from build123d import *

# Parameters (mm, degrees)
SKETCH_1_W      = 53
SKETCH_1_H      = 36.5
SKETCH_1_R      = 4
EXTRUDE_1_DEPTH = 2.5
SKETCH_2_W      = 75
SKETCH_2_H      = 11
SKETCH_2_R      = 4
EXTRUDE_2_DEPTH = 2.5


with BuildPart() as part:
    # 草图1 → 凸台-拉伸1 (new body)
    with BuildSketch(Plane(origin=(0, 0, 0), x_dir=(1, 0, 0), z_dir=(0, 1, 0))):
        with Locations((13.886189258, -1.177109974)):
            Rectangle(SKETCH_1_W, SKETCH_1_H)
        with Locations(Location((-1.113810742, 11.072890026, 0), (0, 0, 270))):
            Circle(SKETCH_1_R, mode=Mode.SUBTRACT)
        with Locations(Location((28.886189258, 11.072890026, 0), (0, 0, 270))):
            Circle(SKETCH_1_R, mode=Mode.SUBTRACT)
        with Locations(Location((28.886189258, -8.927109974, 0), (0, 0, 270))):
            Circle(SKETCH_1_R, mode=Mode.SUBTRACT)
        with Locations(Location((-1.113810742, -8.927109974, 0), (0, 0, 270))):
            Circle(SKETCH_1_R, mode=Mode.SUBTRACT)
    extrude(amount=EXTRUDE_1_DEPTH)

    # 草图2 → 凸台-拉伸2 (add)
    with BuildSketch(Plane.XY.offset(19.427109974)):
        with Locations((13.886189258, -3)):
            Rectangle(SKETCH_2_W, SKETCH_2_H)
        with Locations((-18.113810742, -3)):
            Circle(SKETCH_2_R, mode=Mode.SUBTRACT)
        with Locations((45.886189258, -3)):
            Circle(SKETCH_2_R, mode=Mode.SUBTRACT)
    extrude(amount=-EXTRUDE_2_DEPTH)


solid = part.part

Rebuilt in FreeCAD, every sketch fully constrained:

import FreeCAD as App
import Part
import Sketcher
Q = App.Units.Quantity

doc = App.newDocument("Part")
body = doc.addObject("PartDesign::Body", "Body")

# Sketch on XZ plane
sketch1 = body.newObject("Sketcher::SketchObject", "Sketch")
sketch1.AttachmentSupport = (doc.getObject("XZ_Plane"), [""])
sketch1.MapMode = "FlatFace"
sketch1.addGeometry(Part.LineSegment(App.Vector(-12.6, -17.1, 0), App.Vector(-12.6, 19.4, 0)), False)
sketch1.addGeometry(Part.LineSegment(App.Vector(-12.6, 19.4, 0), App.Vector(40.4, 19.4, 0)), False)
sketch1.addGeometry(Part.LineSegment(App.Vector(40.4, 19.4, 0), App.Vector(40.4, -17.1, 0)), False)
sketch1.addGeometry(Part.LineSegment(App.Vector(40.4, -17.1, 0), App.Vector(-12.6, -17.1, 0)), False)
sketch1.addGeometry(Part.Circle(App.Vector(-1.1, 8.9, 0), App.Vector(0, 0, 1), 4), False)
sketch1.addGeometry(Part.Circle(App.Vector(28.9, 8.9, 0), App.Vector(0, 0, 1), 4), False)
sketch1.addGeometry(Part.Circle(App.Vector(-1.1, -11.1, 0), App.Vector(0, 0, 1), 4), False)
sketch1.addGeometry(Part.Circle(App.Vector(28.9, -11.1, 0), App.Vector(0, 0, 1), 4), False)
sketch1.addConstraint(Sketcher.Constraint("Coincident", 0, 2, 1, 1))
sketch1.addConstraint(Sketcher.Constraint("Coincident", 1, 2, 2, 1))
sketch1.addConstraint(Sketcher.Constraint("Coincident", 2, 2, 3, 1))
sketch1.addConstraint(Sketcher.Constraint("Coincident", 3, 2, 0, 1))
sketch1.addConstraint(Sketcher.Constraint("Vertical", 0))
sketch1.addConstraint(Sketcher.Constraint("Horizontal", 1))
sketch1.addConstraint(Sketcher.Constraint("Vertical", 2))
sketch1.addConstraint(Sketcher.Constraint("Horizontal", 3))
sketch1.addConstraint(Sketcher.Constraint("Equal", 4, 5))
sketch1.addConstraint(Sketcher.Constraint("Equal", 5, 6))
sketch1.addConstraint(Sketcher.Constraint("Equal", 6, 7))
sketch1.addConstraint(Sketcher.Constraint("Horizontal", 4, 3, 5, 3))
sketch1.addConstraint(Sketcher.Constraint("Horizontal", 6, 3, 7, 3))
sketch1.addConstraint(Sketcher.Constraint("Vertical", 4, 3, 6, 3))
sketch1.addConstraint(Sketcher.Constraint("Vertical", 5, 3, 7, 3))
sketch1.addConstraint(Sketcher.Constraint("Diameter", 4, Q("8 mm")))
sketch1.addConstraint(Sketcher.Constraint("DistanceX", 1, 1, 1, 2, Q("53 mm")))
sketch1.addConstraint(Sketcher.Constraint("DistanceY", 0, 1, 0, 2, Q("36.5 mm")))
sketch1.addConstraint(Sketcher.Constraint("DistanceX", 4, 3, 5, 3, Q("30 mm")))
sketch1.addConstraint(Sketcher.Constraint("DistanceY", 6, 3, 4, 3, Q("20 mm")))
sketch1.addConstraint(Sketcher.Constraint("DistanceY", 2, 2, 7, 3, Q("6 mm")))
sketch1.addConstraint(Sketcher.Constraint("DistanceX", 0, 2, 4, 3, Q("11.5 mm")))
sketch1.addConstraint(Sketcher.Constraint("DistanceX", 4, 3, -1, 1, Q("1.113811 mm")))
sketch1.addConstraint(Sketcher.Constraint("DistanceY", -1, 1, 4, 3, Q("8.92711 mm")))
pad1 = body.newObject("PartDesign::Pad", "Pad")
pad1.Profile = sketch1
pad1.Length = 2.5
pad1.Reversed = True

# Sketch on XY plane
sketch2 = body.newObject("Sketcher::SketchObject", "Sketch001")
sketch2.AttachmentSupport = (doc.getObject("XY_Plane"), [""])
sketch2.MapMode = "FlatFace"
sketch2.AttachmentOffset = App.Placement(App.Vector(0, 0, 19.42711), App.Rotation())
sketch2.addGeometry(Part.LineSegment(App.Vector(-23.6, 2.5, 0), App.Vector(-23.6, -8.5, 0)), False)
sketch2.addGeometry(Part.LineSegment(App.Vector(-23.6, -8.5, 0), App.Vector(51.4, -8.5, 0)), False)
sketch2.addGeometry(Part.LineSegment(App.Vector(51.4, -8.5, 0), App.Vector(51.4, 2.5, 0)), False)
sketch2.addGeometry(Part.LineSegment(App.Vector(51.4, 2.5, 0), App.Vector(-23.6, 2.5, 0)), False)
sketch2.addGeometry(Part.Circle(App.Vector(-18.1, -3, 0), App.Vector(0, 0, 1), 4), False)
sketch2.addGeometry(Part.Circle(App.Vector(45.9, -3, 0), App.Vector(0, 0, 1), 4), False)
sketch2.addConstraint(Sketcher.Constraint("Coincident", 0, 2, 1, 1))
sketch2.addConstraint(Sketcher.Constraint("Coincident", 1, 2, 2, 1))
sketch2.addConstraint(Sketcher.Constraint("Coincident", 2, 2, 3, 1))
sketch2.addConstraint(Sketcher.Constraint("Coincident", 3, 2, 0, 1))
sketch2.addConstraint(Sketcher.Constraint("Vertical", 0))
sketch2.addConstraint(Sketcher.Constraint("Horizontal", 1))
sketch2.addConstraint(Sketcher.Constraint("Vertical", 2))
sketch2.addConstraint(Sketcher.Constraint("Horizontal", 3))
sketch2.addConstraint(Sketcher.Constraint("Equal", 4, 5))
sketch2.addConstraint(Sketcher.Constraint("Horizontal", 4, 3, 5, 3))
sketch2.addConstraint(Sketcher.Constraint("Diameter", 4, Q("8 mm")))
sketch2.addConstraint(Sketcher.Constraint("DistanceX", 1, 1, 1, 2, Q("75 mm")))
sketch2.addConstraint(Sketcher.Constraint("DistanceY", 0, 2, 0, 1, Q("11 mm")))
sketch2.addConstraint(Sketcher.Constraint("DistanceY", 4, 3, -1, 1, Q("3 mm")))
sketch2.addConstraint(Sketcher.Constraint("DistanceX", 4, 3, 5, 3, Q("64 mm")))
sketch2.addConstraint(Sketcher.Constraint("DistanceY", 0, 2, -1, 1, Q("8.5 mm")))
sketch2.addConstraint(Sketcher.Constraint("DistanceX", 0, 2, 4, 3, Q("5.5 mm")))
sketch2.addConstraint(Sketcher.Constraint("DistanceX", 4, 3, -1, 1, Q("18.113811 mm")))
pad2 = body.newObject("PartDesign::Pad", "Pad001")
pad2.Profile = sketch2
pad2.Length = 2.5
pad2.Reversed = True

doc.recompute()
